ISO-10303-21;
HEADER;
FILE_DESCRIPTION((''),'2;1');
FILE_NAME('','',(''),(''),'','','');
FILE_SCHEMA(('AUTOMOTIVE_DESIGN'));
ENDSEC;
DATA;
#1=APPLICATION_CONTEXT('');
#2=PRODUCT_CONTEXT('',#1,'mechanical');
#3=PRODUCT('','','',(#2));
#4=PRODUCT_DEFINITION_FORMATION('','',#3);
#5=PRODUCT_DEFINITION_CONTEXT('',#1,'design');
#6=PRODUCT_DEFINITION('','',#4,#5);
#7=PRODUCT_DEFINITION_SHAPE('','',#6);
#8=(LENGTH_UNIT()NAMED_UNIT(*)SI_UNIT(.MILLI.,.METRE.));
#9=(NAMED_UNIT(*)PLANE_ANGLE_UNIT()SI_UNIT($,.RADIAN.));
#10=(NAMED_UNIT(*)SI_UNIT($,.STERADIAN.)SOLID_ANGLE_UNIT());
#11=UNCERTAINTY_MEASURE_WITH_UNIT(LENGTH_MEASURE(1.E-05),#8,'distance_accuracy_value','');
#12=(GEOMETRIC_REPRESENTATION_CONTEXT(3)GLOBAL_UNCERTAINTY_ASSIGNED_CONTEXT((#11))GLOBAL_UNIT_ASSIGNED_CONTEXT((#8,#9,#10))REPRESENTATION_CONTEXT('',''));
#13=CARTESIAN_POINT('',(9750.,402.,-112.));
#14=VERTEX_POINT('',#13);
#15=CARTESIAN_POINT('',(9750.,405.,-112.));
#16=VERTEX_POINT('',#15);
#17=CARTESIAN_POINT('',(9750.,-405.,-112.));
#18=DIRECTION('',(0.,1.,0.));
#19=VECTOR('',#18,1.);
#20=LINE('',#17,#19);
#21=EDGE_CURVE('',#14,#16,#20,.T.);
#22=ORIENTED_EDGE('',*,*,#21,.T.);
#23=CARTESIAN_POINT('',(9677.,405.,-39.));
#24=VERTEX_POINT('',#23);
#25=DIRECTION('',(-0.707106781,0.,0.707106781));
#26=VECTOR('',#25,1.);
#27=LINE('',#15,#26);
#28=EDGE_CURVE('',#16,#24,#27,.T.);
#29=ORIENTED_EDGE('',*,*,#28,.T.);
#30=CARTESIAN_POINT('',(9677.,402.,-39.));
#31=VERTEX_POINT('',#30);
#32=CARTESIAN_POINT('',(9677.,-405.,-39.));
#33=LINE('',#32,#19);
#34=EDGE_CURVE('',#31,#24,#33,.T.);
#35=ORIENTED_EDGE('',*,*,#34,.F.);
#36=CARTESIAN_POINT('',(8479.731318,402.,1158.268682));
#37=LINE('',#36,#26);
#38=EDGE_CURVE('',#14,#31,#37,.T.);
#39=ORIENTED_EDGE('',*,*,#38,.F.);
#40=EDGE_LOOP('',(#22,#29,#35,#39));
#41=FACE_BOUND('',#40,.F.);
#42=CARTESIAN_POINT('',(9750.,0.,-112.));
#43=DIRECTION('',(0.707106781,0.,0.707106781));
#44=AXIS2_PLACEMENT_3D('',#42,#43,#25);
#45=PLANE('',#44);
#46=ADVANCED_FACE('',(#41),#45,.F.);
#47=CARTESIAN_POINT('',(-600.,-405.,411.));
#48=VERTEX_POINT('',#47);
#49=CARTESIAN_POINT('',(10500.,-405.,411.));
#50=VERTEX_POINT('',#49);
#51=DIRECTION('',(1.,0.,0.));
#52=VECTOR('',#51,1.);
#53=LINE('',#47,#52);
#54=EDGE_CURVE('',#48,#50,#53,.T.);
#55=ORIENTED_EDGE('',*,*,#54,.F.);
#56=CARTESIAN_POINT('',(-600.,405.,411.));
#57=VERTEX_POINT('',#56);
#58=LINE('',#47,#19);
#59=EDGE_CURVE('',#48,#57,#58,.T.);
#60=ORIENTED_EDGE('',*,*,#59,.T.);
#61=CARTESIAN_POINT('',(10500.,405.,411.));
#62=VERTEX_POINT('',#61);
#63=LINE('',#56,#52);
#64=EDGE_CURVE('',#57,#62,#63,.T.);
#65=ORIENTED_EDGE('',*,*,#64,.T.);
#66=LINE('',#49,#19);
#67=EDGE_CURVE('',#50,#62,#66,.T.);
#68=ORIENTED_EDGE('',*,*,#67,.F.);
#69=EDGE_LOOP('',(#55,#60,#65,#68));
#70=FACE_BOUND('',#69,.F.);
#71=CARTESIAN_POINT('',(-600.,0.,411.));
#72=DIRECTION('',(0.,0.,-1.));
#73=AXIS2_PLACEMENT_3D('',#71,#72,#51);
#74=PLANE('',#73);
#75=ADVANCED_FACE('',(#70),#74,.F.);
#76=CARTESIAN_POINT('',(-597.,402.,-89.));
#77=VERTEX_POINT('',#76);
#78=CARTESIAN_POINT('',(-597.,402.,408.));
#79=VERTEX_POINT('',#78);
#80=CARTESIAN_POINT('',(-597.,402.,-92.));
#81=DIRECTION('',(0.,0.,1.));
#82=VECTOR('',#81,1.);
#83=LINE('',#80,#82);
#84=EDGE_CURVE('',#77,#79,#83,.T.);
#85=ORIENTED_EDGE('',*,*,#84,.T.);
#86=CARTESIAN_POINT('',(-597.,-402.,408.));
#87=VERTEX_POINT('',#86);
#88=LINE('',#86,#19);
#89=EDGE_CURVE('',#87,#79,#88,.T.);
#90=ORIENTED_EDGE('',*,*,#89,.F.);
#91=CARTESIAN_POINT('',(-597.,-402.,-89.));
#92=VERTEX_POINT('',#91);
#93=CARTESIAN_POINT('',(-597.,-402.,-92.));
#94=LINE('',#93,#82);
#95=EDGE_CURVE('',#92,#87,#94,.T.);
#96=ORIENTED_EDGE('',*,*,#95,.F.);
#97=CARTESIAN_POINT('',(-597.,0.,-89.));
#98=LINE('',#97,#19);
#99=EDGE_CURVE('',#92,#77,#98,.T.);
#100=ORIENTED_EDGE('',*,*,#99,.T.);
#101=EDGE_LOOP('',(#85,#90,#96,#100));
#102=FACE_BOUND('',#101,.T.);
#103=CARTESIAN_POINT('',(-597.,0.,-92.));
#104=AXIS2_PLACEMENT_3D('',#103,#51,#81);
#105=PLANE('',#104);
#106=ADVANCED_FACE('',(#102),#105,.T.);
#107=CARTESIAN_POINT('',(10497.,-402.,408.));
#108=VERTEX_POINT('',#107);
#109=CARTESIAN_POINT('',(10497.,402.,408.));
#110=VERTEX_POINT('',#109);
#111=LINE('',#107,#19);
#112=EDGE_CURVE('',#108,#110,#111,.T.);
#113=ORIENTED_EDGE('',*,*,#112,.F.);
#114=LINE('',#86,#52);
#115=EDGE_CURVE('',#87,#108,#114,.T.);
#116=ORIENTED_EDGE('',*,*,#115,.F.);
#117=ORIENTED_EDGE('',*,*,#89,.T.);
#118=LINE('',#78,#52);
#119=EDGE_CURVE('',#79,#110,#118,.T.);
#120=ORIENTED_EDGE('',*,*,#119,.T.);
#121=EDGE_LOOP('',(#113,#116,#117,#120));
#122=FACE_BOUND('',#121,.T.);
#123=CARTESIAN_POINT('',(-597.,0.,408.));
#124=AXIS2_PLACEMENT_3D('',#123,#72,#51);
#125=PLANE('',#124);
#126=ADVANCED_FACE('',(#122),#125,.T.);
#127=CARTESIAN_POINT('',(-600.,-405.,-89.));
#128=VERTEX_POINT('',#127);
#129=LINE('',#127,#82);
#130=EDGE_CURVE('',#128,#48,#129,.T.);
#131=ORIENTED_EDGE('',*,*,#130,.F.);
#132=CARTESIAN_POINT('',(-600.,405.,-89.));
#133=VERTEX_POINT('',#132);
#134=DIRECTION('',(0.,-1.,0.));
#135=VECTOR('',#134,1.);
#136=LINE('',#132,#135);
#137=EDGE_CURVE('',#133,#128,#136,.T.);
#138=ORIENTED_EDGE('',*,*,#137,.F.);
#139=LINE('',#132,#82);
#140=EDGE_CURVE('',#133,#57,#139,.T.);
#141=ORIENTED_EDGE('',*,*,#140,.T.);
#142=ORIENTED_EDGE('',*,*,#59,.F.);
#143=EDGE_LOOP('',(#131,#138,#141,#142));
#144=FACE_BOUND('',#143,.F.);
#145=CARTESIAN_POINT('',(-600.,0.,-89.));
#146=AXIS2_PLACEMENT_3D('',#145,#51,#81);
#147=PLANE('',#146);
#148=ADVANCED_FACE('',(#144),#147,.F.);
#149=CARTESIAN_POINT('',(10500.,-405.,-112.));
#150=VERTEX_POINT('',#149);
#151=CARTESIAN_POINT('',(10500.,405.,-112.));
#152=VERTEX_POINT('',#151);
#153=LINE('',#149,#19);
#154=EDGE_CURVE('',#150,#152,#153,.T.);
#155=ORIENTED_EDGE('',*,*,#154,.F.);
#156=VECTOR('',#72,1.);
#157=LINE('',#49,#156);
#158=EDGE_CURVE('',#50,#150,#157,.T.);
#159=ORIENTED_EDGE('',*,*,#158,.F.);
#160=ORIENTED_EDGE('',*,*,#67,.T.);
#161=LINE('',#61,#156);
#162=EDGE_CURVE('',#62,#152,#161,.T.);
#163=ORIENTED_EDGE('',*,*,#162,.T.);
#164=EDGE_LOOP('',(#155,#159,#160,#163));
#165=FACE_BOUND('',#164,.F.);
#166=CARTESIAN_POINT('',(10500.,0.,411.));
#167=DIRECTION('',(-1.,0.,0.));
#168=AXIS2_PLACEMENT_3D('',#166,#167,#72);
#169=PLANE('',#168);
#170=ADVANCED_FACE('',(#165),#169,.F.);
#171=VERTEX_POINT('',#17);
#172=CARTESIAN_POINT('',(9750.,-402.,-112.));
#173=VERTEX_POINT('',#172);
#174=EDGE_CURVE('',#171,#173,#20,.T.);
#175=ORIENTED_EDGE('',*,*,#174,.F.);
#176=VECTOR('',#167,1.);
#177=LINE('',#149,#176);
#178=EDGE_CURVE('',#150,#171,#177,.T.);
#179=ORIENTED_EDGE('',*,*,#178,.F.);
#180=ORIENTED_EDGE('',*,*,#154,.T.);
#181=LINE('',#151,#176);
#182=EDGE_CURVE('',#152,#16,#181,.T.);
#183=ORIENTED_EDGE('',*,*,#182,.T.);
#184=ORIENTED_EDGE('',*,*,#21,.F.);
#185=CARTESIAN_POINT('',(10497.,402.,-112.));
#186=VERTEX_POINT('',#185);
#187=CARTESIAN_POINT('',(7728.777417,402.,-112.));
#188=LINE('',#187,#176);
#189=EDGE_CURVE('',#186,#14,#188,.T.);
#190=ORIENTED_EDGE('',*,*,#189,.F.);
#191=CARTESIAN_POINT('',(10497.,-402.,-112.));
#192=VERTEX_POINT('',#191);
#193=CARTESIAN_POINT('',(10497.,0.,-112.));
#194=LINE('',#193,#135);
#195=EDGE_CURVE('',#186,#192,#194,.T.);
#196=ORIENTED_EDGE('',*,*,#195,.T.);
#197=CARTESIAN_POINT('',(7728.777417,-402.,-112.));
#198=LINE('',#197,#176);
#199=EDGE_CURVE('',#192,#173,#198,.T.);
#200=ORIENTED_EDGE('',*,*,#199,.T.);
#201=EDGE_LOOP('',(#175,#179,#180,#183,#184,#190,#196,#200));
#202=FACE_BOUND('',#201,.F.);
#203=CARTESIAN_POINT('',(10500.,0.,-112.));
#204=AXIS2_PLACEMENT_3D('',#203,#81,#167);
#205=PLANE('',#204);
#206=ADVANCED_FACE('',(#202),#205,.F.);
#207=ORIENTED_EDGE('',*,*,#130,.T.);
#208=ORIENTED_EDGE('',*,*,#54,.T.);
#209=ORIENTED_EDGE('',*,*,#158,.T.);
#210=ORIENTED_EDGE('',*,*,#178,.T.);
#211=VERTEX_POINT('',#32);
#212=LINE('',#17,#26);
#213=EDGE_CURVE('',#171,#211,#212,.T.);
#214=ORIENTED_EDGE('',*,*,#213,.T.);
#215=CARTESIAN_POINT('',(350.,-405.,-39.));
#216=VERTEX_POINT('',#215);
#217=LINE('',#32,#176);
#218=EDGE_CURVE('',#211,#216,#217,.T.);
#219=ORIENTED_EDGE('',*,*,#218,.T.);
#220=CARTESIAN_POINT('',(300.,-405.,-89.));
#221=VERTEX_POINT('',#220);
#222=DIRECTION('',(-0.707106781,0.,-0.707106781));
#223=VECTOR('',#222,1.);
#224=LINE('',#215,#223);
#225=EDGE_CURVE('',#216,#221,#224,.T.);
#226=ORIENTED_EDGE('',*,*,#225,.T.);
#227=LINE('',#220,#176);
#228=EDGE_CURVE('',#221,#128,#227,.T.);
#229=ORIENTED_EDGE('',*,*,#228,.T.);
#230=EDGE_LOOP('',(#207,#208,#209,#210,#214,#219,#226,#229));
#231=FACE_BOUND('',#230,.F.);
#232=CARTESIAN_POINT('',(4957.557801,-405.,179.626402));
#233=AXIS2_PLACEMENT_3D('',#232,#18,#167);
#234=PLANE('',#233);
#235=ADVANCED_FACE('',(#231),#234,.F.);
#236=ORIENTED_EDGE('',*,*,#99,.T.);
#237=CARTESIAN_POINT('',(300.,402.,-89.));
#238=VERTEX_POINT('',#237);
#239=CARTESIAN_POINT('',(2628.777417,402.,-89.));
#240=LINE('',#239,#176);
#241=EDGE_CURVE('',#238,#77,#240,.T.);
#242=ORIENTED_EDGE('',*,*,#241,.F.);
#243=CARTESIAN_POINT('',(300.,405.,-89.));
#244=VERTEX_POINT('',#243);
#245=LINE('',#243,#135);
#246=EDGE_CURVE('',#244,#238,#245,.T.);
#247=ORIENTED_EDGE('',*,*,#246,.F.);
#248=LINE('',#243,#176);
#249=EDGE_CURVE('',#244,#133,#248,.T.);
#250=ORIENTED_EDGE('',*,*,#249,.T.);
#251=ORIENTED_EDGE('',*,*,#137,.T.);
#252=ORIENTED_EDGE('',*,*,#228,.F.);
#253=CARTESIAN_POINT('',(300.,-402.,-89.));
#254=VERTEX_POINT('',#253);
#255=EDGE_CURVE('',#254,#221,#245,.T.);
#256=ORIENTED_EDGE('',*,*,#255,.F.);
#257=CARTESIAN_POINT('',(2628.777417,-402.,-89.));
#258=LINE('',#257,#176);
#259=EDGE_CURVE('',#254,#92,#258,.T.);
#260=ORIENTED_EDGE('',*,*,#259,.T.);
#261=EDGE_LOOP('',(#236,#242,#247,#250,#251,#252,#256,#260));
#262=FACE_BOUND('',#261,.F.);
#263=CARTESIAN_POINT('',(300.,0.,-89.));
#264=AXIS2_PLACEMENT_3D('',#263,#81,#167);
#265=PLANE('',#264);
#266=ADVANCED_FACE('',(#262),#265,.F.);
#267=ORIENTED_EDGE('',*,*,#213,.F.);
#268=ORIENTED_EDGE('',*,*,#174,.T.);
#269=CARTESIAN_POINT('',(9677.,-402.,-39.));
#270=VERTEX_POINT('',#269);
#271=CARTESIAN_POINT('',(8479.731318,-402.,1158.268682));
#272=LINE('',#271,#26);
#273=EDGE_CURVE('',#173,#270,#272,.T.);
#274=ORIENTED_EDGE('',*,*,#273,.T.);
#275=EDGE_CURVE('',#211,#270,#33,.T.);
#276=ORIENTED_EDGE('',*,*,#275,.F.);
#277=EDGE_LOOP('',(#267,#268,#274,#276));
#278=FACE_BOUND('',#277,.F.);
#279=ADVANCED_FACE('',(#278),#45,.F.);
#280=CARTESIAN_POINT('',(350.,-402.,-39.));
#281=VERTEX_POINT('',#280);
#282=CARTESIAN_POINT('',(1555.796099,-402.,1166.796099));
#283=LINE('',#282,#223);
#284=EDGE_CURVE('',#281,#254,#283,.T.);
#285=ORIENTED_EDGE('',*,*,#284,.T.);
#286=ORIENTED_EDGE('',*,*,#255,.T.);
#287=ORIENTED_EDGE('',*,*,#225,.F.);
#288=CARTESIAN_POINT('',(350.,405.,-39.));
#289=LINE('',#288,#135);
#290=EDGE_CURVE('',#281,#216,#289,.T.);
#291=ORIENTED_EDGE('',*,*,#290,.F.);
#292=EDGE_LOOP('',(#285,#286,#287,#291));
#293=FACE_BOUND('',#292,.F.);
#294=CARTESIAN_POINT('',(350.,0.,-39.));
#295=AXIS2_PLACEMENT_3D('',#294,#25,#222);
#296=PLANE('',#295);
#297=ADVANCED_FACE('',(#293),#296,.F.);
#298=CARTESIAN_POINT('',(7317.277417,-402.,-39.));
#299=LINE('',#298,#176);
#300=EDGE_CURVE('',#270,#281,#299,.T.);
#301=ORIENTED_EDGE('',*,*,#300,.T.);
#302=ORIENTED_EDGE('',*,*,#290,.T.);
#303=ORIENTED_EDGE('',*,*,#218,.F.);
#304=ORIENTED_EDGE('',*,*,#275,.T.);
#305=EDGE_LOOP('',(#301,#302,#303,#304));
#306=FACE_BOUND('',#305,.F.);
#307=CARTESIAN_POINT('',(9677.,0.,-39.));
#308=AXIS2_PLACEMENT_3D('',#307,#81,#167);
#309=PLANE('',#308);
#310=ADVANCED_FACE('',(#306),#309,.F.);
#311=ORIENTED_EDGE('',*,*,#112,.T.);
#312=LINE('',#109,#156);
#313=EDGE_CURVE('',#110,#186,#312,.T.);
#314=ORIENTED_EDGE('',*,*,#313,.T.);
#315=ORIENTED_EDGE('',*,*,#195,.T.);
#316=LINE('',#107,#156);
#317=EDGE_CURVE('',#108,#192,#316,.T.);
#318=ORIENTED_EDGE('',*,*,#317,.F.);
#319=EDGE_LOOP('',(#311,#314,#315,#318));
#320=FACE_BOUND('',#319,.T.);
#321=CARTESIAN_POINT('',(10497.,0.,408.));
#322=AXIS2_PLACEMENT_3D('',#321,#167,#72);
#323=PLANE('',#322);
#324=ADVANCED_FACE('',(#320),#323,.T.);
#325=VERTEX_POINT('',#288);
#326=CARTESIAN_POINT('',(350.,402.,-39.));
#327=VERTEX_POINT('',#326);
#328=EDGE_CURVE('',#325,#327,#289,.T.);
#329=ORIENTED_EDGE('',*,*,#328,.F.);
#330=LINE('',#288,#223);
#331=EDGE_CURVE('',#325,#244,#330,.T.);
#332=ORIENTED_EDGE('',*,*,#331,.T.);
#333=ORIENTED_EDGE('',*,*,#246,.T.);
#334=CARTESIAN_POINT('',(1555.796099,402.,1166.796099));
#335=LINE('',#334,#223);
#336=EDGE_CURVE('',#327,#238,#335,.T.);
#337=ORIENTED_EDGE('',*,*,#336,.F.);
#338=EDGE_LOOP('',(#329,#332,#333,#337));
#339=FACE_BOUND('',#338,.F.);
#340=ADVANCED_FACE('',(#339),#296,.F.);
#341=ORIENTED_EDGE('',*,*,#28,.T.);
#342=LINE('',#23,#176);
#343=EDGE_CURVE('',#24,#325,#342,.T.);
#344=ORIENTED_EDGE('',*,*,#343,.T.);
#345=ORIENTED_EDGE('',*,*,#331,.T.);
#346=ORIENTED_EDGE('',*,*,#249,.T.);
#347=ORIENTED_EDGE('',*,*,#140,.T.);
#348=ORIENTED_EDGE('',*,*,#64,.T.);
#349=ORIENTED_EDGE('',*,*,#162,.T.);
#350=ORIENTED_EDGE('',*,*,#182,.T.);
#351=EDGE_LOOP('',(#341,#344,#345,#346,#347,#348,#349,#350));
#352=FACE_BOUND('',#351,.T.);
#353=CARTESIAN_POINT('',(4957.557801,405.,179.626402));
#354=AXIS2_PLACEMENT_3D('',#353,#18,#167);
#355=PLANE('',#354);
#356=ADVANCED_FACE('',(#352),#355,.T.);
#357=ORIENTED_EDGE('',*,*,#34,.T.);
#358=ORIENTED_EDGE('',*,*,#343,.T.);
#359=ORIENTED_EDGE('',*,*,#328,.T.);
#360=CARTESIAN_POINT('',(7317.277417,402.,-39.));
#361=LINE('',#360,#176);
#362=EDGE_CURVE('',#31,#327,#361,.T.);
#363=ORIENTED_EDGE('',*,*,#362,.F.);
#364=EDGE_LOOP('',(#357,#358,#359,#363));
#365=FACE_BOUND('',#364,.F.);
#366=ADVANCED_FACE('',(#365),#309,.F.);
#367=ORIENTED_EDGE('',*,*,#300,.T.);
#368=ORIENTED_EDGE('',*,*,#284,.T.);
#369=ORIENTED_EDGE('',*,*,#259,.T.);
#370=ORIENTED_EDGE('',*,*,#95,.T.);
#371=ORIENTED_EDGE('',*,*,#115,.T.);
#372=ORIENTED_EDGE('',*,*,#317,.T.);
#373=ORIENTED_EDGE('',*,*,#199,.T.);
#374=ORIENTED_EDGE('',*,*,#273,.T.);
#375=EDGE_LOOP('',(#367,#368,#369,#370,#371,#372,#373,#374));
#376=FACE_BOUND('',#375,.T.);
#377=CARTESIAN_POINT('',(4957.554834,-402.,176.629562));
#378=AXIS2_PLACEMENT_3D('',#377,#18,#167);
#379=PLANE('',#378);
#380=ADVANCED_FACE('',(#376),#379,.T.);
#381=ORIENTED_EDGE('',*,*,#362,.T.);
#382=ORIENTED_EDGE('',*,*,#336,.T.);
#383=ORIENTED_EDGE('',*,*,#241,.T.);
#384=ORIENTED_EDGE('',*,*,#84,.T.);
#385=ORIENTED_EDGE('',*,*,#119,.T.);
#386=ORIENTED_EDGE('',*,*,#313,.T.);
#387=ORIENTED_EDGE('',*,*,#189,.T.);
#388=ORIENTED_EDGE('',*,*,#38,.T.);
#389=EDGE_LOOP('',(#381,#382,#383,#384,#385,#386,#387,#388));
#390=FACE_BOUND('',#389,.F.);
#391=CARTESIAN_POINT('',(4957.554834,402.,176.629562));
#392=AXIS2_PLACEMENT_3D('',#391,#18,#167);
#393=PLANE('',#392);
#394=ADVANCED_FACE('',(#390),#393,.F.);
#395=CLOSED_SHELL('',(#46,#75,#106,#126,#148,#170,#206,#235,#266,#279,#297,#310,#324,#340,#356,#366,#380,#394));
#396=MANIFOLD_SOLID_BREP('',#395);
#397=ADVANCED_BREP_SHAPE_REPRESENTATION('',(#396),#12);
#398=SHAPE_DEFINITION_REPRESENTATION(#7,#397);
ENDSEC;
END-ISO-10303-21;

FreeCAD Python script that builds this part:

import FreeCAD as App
import Part
import Sketcher
Q = App.Units.Quantity

doc = App.newDocument("Part")
params = doc.addObject("Spreadsheet::Sheet", "Params")
for row, (alias, value) in enumerate([
    ("sketch1_width", "897 mm"),
    ("sketch1_width2", "9324 mm"),
    ("sketch1_width3", "750 mm"),
    ("sketch1_width4", "11094 mm"),
    ("sketch1_height", "500 mm"),
    ("pad1_length", "804 mm"),
    ("sketch2_width", "900 mm"),
    ("sketch2_width2", "9327 mm"),
    ("sketch2_width3", "750 mm"),
    ("sketch2_width4", "11100 mm"),
    ("sketch2_height", "500 mm"),
    ("pad2_length", "810 mm"),
], start=1):
    params.set(f"A{row}", alias)
    params.set(f"B{row}", "=" + value)
    params.setAlias(f"B{row}", alias)

body = doc.addObject("PartDesign::Body", "Body")

sketch1 = body.newObject("Sketcher::SketchObject", "Sketch")
sketch1.AttachmentSupport = (doc.getObject("XZ_Plane"), [""])
sketch1.MapMode = "FlatFace"
sketch1.addGeometry([
    Part.LineSegment(App.Vector(-597, 411, 0), App.Vector(-597, -89, 0)),
    Part.LineSegment(App.Vector(-597, -89, 0), App.Vector(300, -89, 0)),
    Part.LineSegment(App.Vector(300, -89, 0), App.Vector(350, -39, 0)),
    Part.LineSegment(App.Vector(350, -39, 0), App.Vector(9674, -39, 0)),
    Part.LineSegment(App.Vector(9674, -39, 0), App.Vector(9747, -112, 0)),
    Part.LineSegment(App.Vector(9747, -112, 0), App.Vector(10497, -112, 0)),
    Part.LineSegment(App.Vector(10497, -112, 0), App.Vector(10497, 411, 0)),
    Part.LineSegment(App.Vector(10497, 411, 0), App.Vector(-597, 411, 0)),
], False)
sketch1.addConstraint([
    Sketcher.Constraint("Coincident", 0, 2, 1, 1),
    Sketcher.Constraint("Coincident", 1, 2, 2, 1),
    Sketcher.Constraint("Coincident", 2, 2, 3, 1),
    Sketcher.Constraint("Coincident", 3, 2, 4, 1),
    Sketcher.Constraint("Coincident", 4, 2, 5, 1),
    Sketcher.Constraint("Coincident", 5, 2, 6, 1),
    Sketcher.Constraint("Coincident", 6, 2, 7, 1),
    Sketcher.Constraint("Coincident", 7, 2, 0, 1),
    Sketcher.Constraint("Vertical", 0),
    Sketcher.Constraint("Horizontal", 1),
    Sketcher.Constraint("Horizontal", 3),
    Sketcher.Constraint("Horizontal", 5),
    Sketcher.Constraint("Vertical", 6),
    Sketcher.Constraint("Horizontal", 7),
    Sketcher.Constraint("Perpendicular", 2, 4),
    Sketcher.Constraint("DistanceX", 1, 1, 1, 2, 897.0),
    Sketcher.Constraint("DistanceX", 3, 1, 3, 2, 9324.0),
    Sketcher.Constraint("DistanceX", 5, 1, 5, 2, 750.0),
    Sketcher.Constraint("DistanceX", 7, 2, 7, 1, 11094.0),
    Sketcher.Constraint("DistanceY", 0, 2, 0, 1, 500.0),
    Sketcher.Constraint("DistanceY", 6, 1, 6, 2, 523.0),
    Sketcher.Constraint("Angle", 2, Q("45 deg")),
    Sketcher.Constraint("DistanceX", 0, 2, -1, 1, 597.0),
    Sketcher.Constraint("DistanceY", 0, 2, -1, 1, 89.0),
])
sketch1.setExpression("Constraints[15]", "Params.sketch1_width")
sketch1.setExpression("Constraints[16]", "Params.sketch1_width2")
sketch1.setExpression("Constraints[17]", "Params.sketch1_width3")
sketch1.setExpression("Constraints[18]", "Params.sketch1_width4")
sketch1.setExpression("Constraints[19]", "Params.sketch1_height")
pad1 = body.newObject("PartDesign::Pad", "Pad")
pad1.Profile = sketch1
pad1.setExpression("Length", "Params.pad1_length")
pad1.Midplane = True
body2 = doc.addObject("PartDesign::Body", "Body001")
doc.recompute()

body.Placement = App.Placement(App.Vector(0, 0, -3), App.Rotation(App.Vector(0, 0, 1), 0))
boolean = body2.newObject("PartDesign::Boolean", "Boolean")
boolean.Type = "Fuse"
boolean.addObjects([body])
body3 = doc.addObject("PartDesign::Body", "Body002")

sketch2 = body3.newObject("Sketcher::SketchObject", "Sketch001")
sketch2.AttachmentSupport = (doc.getObject("XZ_Plane002"), [""])
sketch2.MapMode = "FlatFace"
sketch2.addGeometry([
    Part.LineSegment(App.Vector(-600, 411, 0), App.Vector(-600, -89, 0)),
    Part.LineSegment(App.Vector(-600, -89, 0), App.Vector(300, -89, 0)),
    Part.LineSegment(App.Vector(300, -89, 0), App.Vector(350, -39, 0)),
    Part.LineSegment(App.Vector(350, -39, 0), App.Vector(9677, -39, 0)),
    Part.LineSegment(App.Vector(9677, -39, 0), App.Vector(9750, -112, 0)),
    Part.LineSegment(App.Vector(9750, -112, 0), App.Vector(10500, -112, 0)),
    Part.LineSegment(App.Vector(10500, -112, 0), App.Vector(10500, 411, 0)),
    Part.LineSegment(App.Vector(10500, 411, 0), App.Vector(-600, 411, 0)),
], False)
sketch2.addConstraint([
    Sketcher.Constraint("Coincident", 0, 2, 1, 1),
    Sketcher.Constraint("Coincident", 1, 2, 2, 1),
    Sketcher.Constraint("Coincident", 2, 2, 3, 1),
    Sketcher.Constraint("Coincident", 3, 2, 4, 1),
    Sketcher.Constraint("Coincident", 4, 2, 5, 1),
    Sketcher.Constraint("Coincident", 5, 2, 6, 1),
    Sketcher.Constraint("Coincident", 6, 2, 7, 1),
    Sketcher.Constraint("Coincident", 7, 2, 0, 1),
    Sketcher.Constraint("Vertical", 0),
    Sketcher.Constraint("Horizontal", 1),
    Sketcher.Constraint("Horizontal", 3),
    Sketcher.Constraint("Horizontal", 5),
    Sketcher.Constraint("Vertical", 6),
    Sketcher.Constraint("Horizontal", 7),
    Sketcher.Constraint("Perpendicular", 2, 4),
    Sketcher.Constraint("DistanceX", 1, 1, 1, 2, 900.0),
    Sketcher.Constraint("DistanceX", 3, 1, 3, 2, 9327.0),
    Sketcher.Constraint("DistanceX", 5, 1, 5, 2, 750.0),
    Sketcher.Constraint("DistanceX", 7, 2, 7, 1, 11100.0),
    Sketcher.Constraint("DistanceY", 0, 2, 0, 1, 500.0),
    Sketcher.Constraint("DistanceY", 6, 1, 6, 2, 523.0),
    Sketcher.Constraint("Angle", 2, Q("45 deg")),
    Sketcher.Constraint("DistanceX", 0, 2, -1, 1, 600.0),
    Sketcher.Constraint("DistanceY", 0, 2, -1, 1, 89.0),
])
sketch2.setExpression("Constraints[15]", "Params.sketch2_width")
sketch2.setExpression("Constraints[16]", "Params.sketch2_width2")
sketch2.setExpression("Constraints[17]", "Params.sketch2_width3")
sketch2.setExpression("Constraints[18]", "Params.sketch2_width4")
sketch2.setExpression("Constraints[19]", "Params.sketch2_height")
pad2 = body3.newObject("PartDesign::Pad", "Pad001")
pad2.Profile = sketch2
pad2.setExpression("Length", "Params.pad2_length")
pad2.Midplane = True
doc.recompute()

boolean2 = body3.newObject("PartDesign::Boolean", "Boolean001")
boolean2.Type = "Cut"
boolean2.addObjects([body2])

doc.recompute()
